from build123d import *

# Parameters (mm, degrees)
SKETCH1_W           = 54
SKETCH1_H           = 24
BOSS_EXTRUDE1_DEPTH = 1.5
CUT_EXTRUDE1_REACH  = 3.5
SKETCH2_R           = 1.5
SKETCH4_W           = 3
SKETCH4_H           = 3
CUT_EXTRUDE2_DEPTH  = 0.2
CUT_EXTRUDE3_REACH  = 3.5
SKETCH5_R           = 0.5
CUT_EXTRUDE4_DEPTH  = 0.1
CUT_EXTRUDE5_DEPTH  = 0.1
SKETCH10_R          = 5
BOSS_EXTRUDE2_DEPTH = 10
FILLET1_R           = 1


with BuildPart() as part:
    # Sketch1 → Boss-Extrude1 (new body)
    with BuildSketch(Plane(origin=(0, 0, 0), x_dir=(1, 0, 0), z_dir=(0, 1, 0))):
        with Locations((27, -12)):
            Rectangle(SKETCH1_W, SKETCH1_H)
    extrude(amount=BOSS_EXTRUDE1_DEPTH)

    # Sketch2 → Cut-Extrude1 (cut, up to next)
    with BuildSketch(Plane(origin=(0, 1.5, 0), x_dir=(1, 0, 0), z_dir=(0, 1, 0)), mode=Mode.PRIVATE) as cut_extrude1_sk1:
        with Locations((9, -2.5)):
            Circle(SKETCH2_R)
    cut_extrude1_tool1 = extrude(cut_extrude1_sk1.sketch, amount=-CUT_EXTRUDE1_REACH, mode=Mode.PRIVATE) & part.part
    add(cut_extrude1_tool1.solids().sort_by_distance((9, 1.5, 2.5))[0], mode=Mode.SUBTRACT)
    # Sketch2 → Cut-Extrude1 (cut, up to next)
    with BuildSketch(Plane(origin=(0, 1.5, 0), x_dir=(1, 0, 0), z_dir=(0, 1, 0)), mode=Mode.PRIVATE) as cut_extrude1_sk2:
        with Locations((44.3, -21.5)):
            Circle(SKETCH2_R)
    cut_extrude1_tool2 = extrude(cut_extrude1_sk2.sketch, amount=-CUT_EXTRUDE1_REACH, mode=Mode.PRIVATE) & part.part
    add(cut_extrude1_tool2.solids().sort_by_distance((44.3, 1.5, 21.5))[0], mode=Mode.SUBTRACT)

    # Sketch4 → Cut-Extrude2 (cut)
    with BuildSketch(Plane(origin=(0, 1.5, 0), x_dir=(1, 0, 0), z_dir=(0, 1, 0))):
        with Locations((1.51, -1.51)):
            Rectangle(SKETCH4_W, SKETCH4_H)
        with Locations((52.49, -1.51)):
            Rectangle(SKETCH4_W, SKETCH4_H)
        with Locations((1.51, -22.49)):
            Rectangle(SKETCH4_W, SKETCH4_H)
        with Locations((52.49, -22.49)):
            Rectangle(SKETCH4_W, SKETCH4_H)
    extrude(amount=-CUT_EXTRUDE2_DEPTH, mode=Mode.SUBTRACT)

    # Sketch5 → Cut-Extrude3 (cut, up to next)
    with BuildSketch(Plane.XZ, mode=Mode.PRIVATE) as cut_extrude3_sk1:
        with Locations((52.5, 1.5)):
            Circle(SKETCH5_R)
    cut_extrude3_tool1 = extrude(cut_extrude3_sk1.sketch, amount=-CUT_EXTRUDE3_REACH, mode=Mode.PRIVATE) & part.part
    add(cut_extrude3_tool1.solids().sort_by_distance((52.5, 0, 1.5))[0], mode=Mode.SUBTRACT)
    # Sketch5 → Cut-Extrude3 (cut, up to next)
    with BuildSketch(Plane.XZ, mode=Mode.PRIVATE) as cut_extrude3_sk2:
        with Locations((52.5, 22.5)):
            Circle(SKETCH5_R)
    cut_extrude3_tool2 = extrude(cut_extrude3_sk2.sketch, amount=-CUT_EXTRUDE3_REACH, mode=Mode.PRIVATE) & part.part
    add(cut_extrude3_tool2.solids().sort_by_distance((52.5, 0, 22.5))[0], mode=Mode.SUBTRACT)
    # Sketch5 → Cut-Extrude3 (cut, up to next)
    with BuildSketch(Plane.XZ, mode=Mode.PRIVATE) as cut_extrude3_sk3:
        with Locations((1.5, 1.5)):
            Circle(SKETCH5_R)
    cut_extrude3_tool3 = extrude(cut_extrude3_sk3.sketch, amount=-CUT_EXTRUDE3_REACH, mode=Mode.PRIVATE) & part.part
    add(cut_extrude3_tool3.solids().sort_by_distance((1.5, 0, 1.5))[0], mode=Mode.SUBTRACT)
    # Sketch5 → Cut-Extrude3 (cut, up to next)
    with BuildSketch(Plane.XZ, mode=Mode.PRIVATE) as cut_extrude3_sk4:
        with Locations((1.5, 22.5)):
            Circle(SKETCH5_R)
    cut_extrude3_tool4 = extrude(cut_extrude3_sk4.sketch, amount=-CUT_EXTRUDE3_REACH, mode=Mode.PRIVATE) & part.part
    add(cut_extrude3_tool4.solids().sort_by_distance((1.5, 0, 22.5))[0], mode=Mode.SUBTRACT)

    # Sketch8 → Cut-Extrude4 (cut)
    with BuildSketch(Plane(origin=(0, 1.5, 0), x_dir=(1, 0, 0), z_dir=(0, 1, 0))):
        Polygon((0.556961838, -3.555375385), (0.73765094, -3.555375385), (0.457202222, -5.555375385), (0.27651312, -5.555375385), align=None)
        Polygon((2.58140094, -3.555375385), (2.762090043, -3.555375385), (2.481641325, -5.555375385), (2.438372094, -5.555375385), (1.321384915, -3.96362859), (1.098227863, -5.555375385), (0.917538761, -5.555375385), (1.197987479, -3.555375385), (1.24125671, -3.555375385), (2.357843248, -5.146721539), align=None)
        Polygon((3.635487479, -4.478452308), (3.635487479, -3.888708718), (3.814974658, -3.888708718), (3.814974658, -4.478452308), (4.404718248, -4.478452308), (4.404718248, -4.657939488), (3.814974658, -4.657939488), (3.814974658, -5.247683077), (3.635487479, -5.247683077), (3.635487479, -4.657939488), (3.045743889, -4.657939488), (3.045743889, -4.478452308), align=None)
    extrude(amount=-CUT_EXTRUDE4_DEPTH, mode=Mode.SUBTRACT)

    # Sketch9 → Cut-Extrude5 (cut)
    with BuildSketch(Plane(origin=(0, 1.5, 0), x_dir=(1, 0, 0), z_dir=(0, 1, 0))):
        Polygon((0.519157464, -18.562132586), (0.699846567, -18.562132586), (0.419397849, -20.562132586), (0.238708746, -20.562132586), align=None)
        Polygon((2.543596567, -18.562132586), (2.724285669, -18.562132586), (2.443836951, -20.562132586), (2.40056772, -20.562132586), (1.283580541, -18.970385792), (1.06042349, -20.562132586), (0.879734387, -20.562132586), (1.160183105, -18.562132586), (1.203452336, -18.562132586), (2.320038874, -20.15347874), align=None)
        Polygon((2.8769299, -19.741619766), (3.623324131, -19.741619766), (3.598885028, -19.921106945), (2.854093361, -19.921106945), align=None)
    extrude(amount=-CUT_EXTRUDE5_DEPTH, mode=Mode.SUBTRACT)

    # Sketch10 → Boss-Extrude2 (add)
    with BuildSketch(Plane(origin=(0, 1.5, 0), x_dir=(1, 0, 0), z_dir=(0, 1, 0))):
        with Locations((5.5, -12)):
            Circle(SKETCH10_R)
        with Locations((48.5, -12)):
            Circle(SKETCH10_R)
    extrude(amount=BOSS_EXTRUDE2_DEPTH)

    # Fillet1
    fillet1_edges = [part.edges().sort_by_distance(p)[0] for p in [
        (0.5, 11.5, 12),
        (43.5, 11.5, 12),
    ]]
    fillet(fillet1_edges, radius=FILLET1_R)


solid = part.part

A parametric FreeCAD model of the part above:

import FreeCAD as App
import Part
import Sketcher

V = App.Vector
Q = App.Units.Quantity


def edges_at(feature, points):
    """Names of the edges that pass closest to the given points."""
    edges = feature.Shape.Edges
    near = lambda p: min(range(len(edges)), key=lambda i: edges[i].distToShape(Part.Vertex(*p))[0])
    return sorted({f"Edge{near(p) + 1}" for p in points})


def add_polygon(sketch, points):
    """Adds a closed chain of lines whose ends are joined by coincident constraints."""
    first, n = sketch.GeometryCount, len(points)
    for a, b in zip(points, points[1:] + points[:1]):
        sketch.addGeometry(Part.LineSegment(App.Vector(*a, 0), App.Vector(*b, 0)), False)
    for i in range(n):
        sketch.addConstraint(Sketcher.Constraint("Coincident", first + i, 2, first + (i + 1) % n, 1))

doc = App.newDocument("Part")
body = doc.addObject("PartDesign::Body", "Body")

sketch1 = doc.addObject("Sketcher::SketchObject", "Sketch")
body.addObject(sketch1)
sketch1.AttachmentSupport = (doc.XZ_Plane, [""])
sketch1.MapMode = "FlatFace"
add_polygon(sketch1, [(0, 0), (0, 24), (54, 24), (54, 0)])
sketch1.addConstraint([
    Sketcher.Constraint("Vertical", 0),
    Sketcher.Constraint("Horizontal", 1),
    Sketcher.Constraint("Vertical", 2),
    Sketcher.Constraint("Horizontal", 3),
    Sketcher.Constraint("Coincident", 3, 2, -1, 1),
    Sketcher.Constraint("DistanceX", 1, 1, 1, 2, Q("54 mm")),
    Sketcher.Constraint("DistanceY", 0, 1, 0, 2, Q("24 mm")),
])
pad1 = doc.addObject("PartDesign::Pad", "Pad")
body.addObject(pad1)
pad1.Profile = sketch1
pad1.Length = 1.5
pad1.Reversed = True

sketch2 = doc.addObject("Sketcher::SketchObject", "Sketch001")
body.addObject(sketch2)
sketch2.AttachmentSupport = (doc.XZ_Plane, [""])
sketch2.MapMode = "FlatFace"
sketch2.AttachmentOffset = App.Placement(V(0, 0, -1.5), App.Rotation())
sketch2.addGeometry(Part.Circle(V(9, 2.5, 0), V(0, 0, 1), 1.5), False)
sketch2.addConstraint([
    Sketcher.Constraint("Diameter", 0, Q("3 mm")),
    Sketcher.Constraint("DistanceX", -1, 1, 0, 3, Q("9 mm")),
    Sketcher.Constraint("DistanceY", -1, 1, 0, 3, Q("2.5 mm")),
])
pocket1 = doc.addObject("PartDesign::Pocket", "Pocket")
body.addObject(pocket1)
pocket1.Profile = sketch2
pocket1.Type = "UpToFirst"
pocket1.Reversed = True

sketch3 = doc.addObject("Sketcher::SketchObject", "Sketch002")
body.addObject(sketch3)
sketch3.AttachmentSupport = (doc.XZ_Plane, [""])
sketch3.MapMode = "FlatFace"
sketch3.AttachmentOffset = App.Placement(V(0, 0, -1.5), App.Rotation())
sketch3.addGeometry(Part.Circle(V(44.3, 21.5, 0), V(0, 0, 1), 1.5), False)
sketch3.addConstraint([
    Sketcher.Constraint("Diameter", 0, Q("3 mm")),
    Sketcher.Constraint("DistanceX", -1, 1, 0, 3, Q("44.3 mm")),
    Sketcher.Constraint("DistanceY", -1, 1, 0, 3, Q("21.5 mm")),
])
pocket2 = doc.addObject("PartDesign::Pocket", "Pocket001")
body.addObject(pocket2)
pocket2.Profile = sketch3
pocket2.Type = "UpToFirst"
pocket2.Reversed = True

sketch4 = doc.addObject("Sketcher::SketchObject", "Sketch003")
body.addObject(sketch4)
sketch4.AttachmentSupport = (doc.XZ_Plane, [""])
sketch4.MapMode = "FlatFace"
sketch4.AttachmentOffset = App.Placement(V(0, 0, -1.5), App.Rotation())
add_polygon(sketch4, [(0, 0), (0, 3), (3, 3), (3, 0)])
add_polygon(sketch4, [(51, 0), (51, 3), (54, 3), (54, 0)])
add_polygon(sketch4, [(0, 21), (0, 24), (3, 24), (3, 21)])
add_polygon(sketch4, [(51, 21), (51, 24), (54, 24), (54, 21)])
sketch4.addConstraint([
    Sketcher.Constraint("Vertical", 0),
    Sketcher.Constraint("Horizontal", 1),
    Sketcher.Constraint("Vertical", 2),
    Sketcher.Constraint("Horizontal", 3),
    Sketcher.Constraint("Vertical", 4),
    Sketcher.Constraint("Horizontal", 5),
    Sketcher.Constraint("Vertical", 6),
    Sketcher.Constraint("Horizontal", 7),
    Sketcher.Constraint("Vertical", 8),
    Sketcher.Constraint("Horizontal", 9),
    Sketcher.Constraint("Vertical", 10),
    Sketcher.Constraint("Horizontal", 11),
    Sketcher.Constraint("Vertical", 12),
    Sketcher.Constraint("Horizontal", 13),
    Sketcher.Constraint("Vertical", 14),
    Sketcher.Constraint("Horizontal", 15),
    Sketcher.Constraint("Horizontal", 1, 2, 4, 2),
    Sketcher.Constraint("Horizontal", 3, 2, 6, 2),
    Sketcher.Constraint("Horizontal", 9, 2, 12, 2),
    Sketcher.Constraint("Horizontal", 11, 2, 14, 2),
    Sketcher.Constraint("Vertical", 3, 2, 8, 2),
    Sketcher.Constraint("Vertical", 2, 2, 9, 2),
    Sketcher.Constraint("Vertical", 7, 2, 12, 2),
    Sketcher.Constraint("Vertical", 6, 2, 13, 2),
    Sketcher.Constraint("Equal", 3, 5),
    Sketcher.Constraint("Equal", 15, 0),
    Sketcher.Constraint("Equal", 6, 8),
    Sketcher.Constraint("DistanceX", 1, 1, 1, 2, Q("3 mm")),
    Sketcher.Constraint("DistanceX", -1, 1, 0, 2, Q("0.01 mm")),
    Sketcher.Constraint("DistanceY", -1, 1, 0, 2, Q("3.01 mm")),
    Sketcher.Constraint("DistanceX", -1, 1, 4, 2, Q("50.99 mm")),
    Sketcher.Constraint("DistanceY", -1, 1, 8, 2, Q("23.99 mm")),
])
pocket3 = doc.addObject("PartDesign::Pocket", "Pocket002")
body.addObject(pocket3)
pocket3.Profile = sketch4
pocket3.Length = 0.2
pocket3.Reversed = True

sketch5 = doc.addObject("Sketcher::SketchObject", "Sketch004")
body.addObject(sketch5)
sketch5.AttachmentSupport = (doc.XZ_Plane, [""])
sketch5.MapMode = "FlatFace"
sketch5.addGeometry(Part.Circle(V(52.5, 1.5, 0), V(0, 0, 1), 0.5), False)
sketch5.addConstraint([
    Sketcher.Constraint("Diameter", 0, Q("1 mm")),
    Sketcher.Constraint("DistanceX", -1, 1, 0, 3, Q("52.5 mm")),
    Sketcher.Constraint("DistanceY", -1, 1, 0, 3, Q("1.5 mm")),
])
pocket4 = doc.addObject("PartDesign::Pocket", "Pocket003")
body.addObject(pocket4)
pocket4.Profile = sketch5
pocket4.Type = "UpToFirst"

sketch6 = doc.addObject("Sketcher::SketchObject", "Sketch005")
body.addObject(sketch6)
sketch6.AttachmentSupport = (doc.XZ_Plane, [""])
sketch6.MapMode = "FlatFace"
sketch6.addGeometry(Part.Circle(V(52.5, 22.5, 0), V(0, 0, 1), 0.5), False)
sketch6.addConstraint([
    Sketcher.Constraint("Diameter", 0, Q("1 mm")),
    Sketcher.Constraint("DistanceX", -1, 1, 0, 3, Q("52.5 mm")),
    Sketcher.Constraint("DistanceY", -1, 1, 0, 3, Q("22.5 mm")),
])
pocket5 = doc.addObject("PartDesign::Pocket", "Pocket004")
body.addObject(pocket5)
pocket5.Profile = sketch6
pocket5.Type = "UpToFirst"

sketch7 = doc.addObject("Sketcher::SketchObject", "Sketch006")
body.addObject(sketch7)
sketch7.AttachmentSupport = (doc.XZ_Plane, [""])
sketch7.MapMode = "FlatFace"
sketch7.addGeometry(Part.Circle(V(1.5, 1.5, 0), V(0, 0, 1), 0.5), False)
sketch7.addConstraint([
    Sketcher.Constraint("Diameter", 0, Q("1 mm")),
    Sketcher.Constraint("DistanceX", -1, 1, 0, 3, Q("1.5 mm")),
    Sketcher.Constraint("DistanceY", -1, 1, 0, 3, Q("1.5 mm")),
])
pocket6 = doc.addObject("PartDesign::Pocket", "Pocket005")
body.addObject(pocket6)
pocket6.Profile = sketch7
pocket6.Type = "UpToFirst"

sketch8 = doc.addObject("Sketcher::SketchObject", "Sketch007")
body.addObject(sketch8)
sketch8.AttachmentSupport = (doc.XZ_Plane, [""])
sketch8.MapMode = "FlatFace"
sketch8.addGeometry(Part.Circle(V(1.5, 22.5, 0), V(0, 0, 1), 0.5), False)
sketch8.addConstraint([
    Sketcher.Constraint("Diameter", 0, Q("1 mm")),
    Sketcher.Constraint("DistanceX", -1, 1, 0, 3, Q("1.5 mm")),
    Sketcher.Constraint("DistanceY", -1, 1, 0, 3, Q("22.5 mm")),
])
pocket7 = doc.addObject("PartDesign::Pocket", "Pocket006")
body.addObject(pocket7)
pocket7.Profile = sketch8
pocket7.Type = "UpToFirst"

sketch9 = doc.addObject("Sketcher::SketchObject", "Sketch008")
body.addObject(sketch9)
sketch9.AttachmentSupport = (doc.XZ_Plane, [""])
sketch9.MapMode = "FlatFace"
sketch9.AttachmentOffset = App.Placement(V(0, 0, -1.5), App.Rotation())
add_polygon(sketch9, [(0.738, 3.555), (0.557, 3.555), (0.277, 5.555), (0.457, 5.555)])
add_polygon(sketch9, [(2.762, 3.555), (2.581, 3.555), (2.358, 5.147), (1.241, 3.555), (1.198, 3.555), (0.918, 5.555), (1.098, 5.555), (1.321, 3.964), (2.438, 5.555), (2.482, 5.555)])
add_polygon(sketch9, [(3.635, 3.889), (3.635, 4.478), (3.046, 4.478), (3.046, 4.658), (3.635, 4.658), (3.635, 5.248), (3.815, 5.248), (3.815, 4.658), (4.405, 4.658), (4.405, 4.478), (3.815, 4.478), (3.815, 3.889)])
sketch9.addConstraint([
    Sketcher.Constraint("Horizontal", 0),
    Sketcher.Constraint("Horizontal", 2),
    Sketcher.Constraint("Horizontal", 4),
    Sketcher.Constraint("Horizontal", 7),
    Sketcher.Constraint("Horizontal", 9),
    Sketcher.Constraint("Horizontal", 12),
    Sketcher.Constraint("Vertical", 14),
    Sketcher.Constraint("Horizontal", 15),
    Sketcher.Constraint("Vertical", 16),
    Sketcher.Constraint("Horizontal", 17),
    Sketcher.Constraint("Vertical", 18),
    Sketcher.Constraint("Horizontal", 19),
    Sketcher.Constraint("Vertical", 20),
    Sketcher.Constraint("Horizontal", 21),
    Sketcher.Constraint("Vertical", 22),
    Sketcher.Constraint("Horizontal", 23),
    Sketcher.Constraint("Vertical", 24),
    Sketcher.Constraint("Horizontal", 25),
    Sketcher.Constraint("Parallel", 1, 3),
    Sketcher.Constraint("Parallel", 3, 8),
    Sketcher.Constraint("Parallel", 8, 13),
    Sketcher.Constraint("Horizontal", 3, 2, 4, 2),
    Sketcher.Constraint("Horizontal", 4, 2, 6, 2),
    Sketcher.Constraint("Horizontal", 2, 2, 8, 2),
    Sketcher.Constraint("Horizontal", 9, 2, 11, 2),
    Sketcher.Constraint("Horizontal", 17, 2, 20, 2),
    Sketcher.Constraint("Horizontal", 15, 2, 22, 2),
    Sketcher.Constraint("Vertical", 14, 2, 17, 2),
    Sketcher.Constraint("Vertical", 20, 2, 23, 2),
    Sketcher.Constraint("Equal", 2, 4),
    Sketcher.Constraint("Equal", 4, 9),
    Sketcher.Constraint("Equal", 7, 12),
    Sketcher.Constraint("Equal", 17, 21),
    Sketcher.Constraint("Equal", 23, 14),
    Sketcher.Constraint("Equal", 25, 16),
    Sketcher.Constraint("Equal", 14, 18),
    Sketcher.Constraint("DistanceY", 0, 2, 1, 2, Q("2 mm")),
    Sketcher.Constraint("DistanceX", 0, 2, 0, 1, Q("0.180689 mm")),
    Sketcher.Constraint("DistanceX", 7, 2, 7, 1, Q("0.043269 mm")),
    Sketcher.Constraint("DistanceX", -1, 1, 4, 2, Q("2.581401 mm")),
    Sketcher.Constraint("DistanceX", 2, 2, 4, 2, Q("2.124199 mm")),
    Sketcher.Constraint("DistanceX", 5, 2, 12, 2, Q("0.123798 mm")),
    Sketcher.Constraint("DistanceX", 5, 2, 15, 2, Q("0.687901 mm")),
    Sketcher.Constraint("Distance", 11, Q("1.944561 mm")),
    Sketcher.Constraint("DistanceX", 15, 2, 15, 1, Q("0.589744 mm")),
    Sketcher.Constraint("DistanceX", 19, 1, 19, 2, Q("0.179487 mm")),
    Sketcher.Constraint("DistanceX", -1, 1, 0, 2, Q("0.556962 mm")),
    Sketcher.Constraint("DistanceY", -1, 1, 5, 2, Q("5.146722 mm")),
    Sketcher.Constraint("DistanceX", -1, 1, 8, 2, Q("0.917539 mm")),
    Sketcher.Constraint("DistanceY", -1, 1, 10, 2, Q("3.963629 mm")),
    Sketcher.Constraint("DistanceY", -1, 1, 16, 2, Q("4.657939 mm")),
    Sketcher.Constraint("DistanceX", 6, 2, 10, 2, Q("0.080128 mm")),
])
pocket8 = doc.addObject("PartDesign::Pocket", "Pocket007")
body.addObject(pocket8)
pocket8.Profile = sketch9
pocket8.Length = 0.1
pocket8.Reversed = True

sketch10 = doc.addObject("Sketcher::SketchObject", "Sketch009")
body.addObject(sketch10)
sketch10.AttachmentSupport = (doc.XZ_Plane, [""])
sketch10.MapMode = "FlatFace"
sketch10.AttachmentOffset = App.Placement(V(0, 0, -1.5), App.Rotation())
add_polygon(sketch10, [(0.7, 18.562), (0.519, 18.562), (0.239, 20.562), (0.419, 20.562)])
add_polygon(sketch10, [(2.724, 18.562), (2.544, 18.562), (2.32, 20.153), (1.203, 18.562), (1.16, 18.562), (0.88, 20.562), (1.06, 20.562), (1.284, 18.97), (2.401, 20.562), (2.444, 20.562)])
add_polygon(sketch10, [(3.623, 19.742), (2.877, 19.742), (2.854, 19.921), (3.599, 19.921)])
sketch10.addConstraint([
    Sketcher.Constraint("Horizontal", 0),
    Sketcher.Constraint("Horizontal", 2),
    Sketcher.Constraint("Horizontal", 4),
    Sketcher.Constraint("Horizontal", 7),
    Sketcher.Constraint("Horizontal", 9),
    Sketcher.Constraint("Horizontal", 12),
    Sketcher.Constraint("Horizontal", 14),
    Sketcher.Constraint("Horizontal", 16),
    Sketcher.Constraint("Parallel", 1, 3),
    Sketcher.Constraint("Parallel", 3, 8),
    Sketcher.Constraint("Parallel", 8, 13),
    Sketcher.Constraint("Horizontal", 3, 2, 4, 2),
    Sketcher.Constraint("Horizontal", 4, 2, 6, 2),
    Sketcher.Constraint("Horizontal", 2, 2, 8, 2),
    Sketcher.Constraint("Horizontal", 9, 2, 11, 2),
    Sketcher.Constraint("Equal", 2, 4),
    Sketcher.Constraint("Equal", 4, 9),
    Sketcher.Constraint("Equal", 7, 12),
    Sketcher.Constraint("DistanceY", 0, 2, 1, 2, Q("2 mm")),
    Sketcher.Constraint("DistanceX", 0, 2, 0, 1, Q("0.180689 mm")),
    Sketcher.Constraint("DistanceX", 7, 2, 7, 1, Q("0.043269 mm")),
    Sketcher.Constraint("DistanceX", 16, 1, 16, 2, Q("0.744792 mm")),
    Sketcher.Constraint("DistanceX", 2, 2, 4, 2, Q("2.124199 mm")),
    Sketcher.Constraint("DistanceX", 5, 2, 12, 2, Q("0.123798 mm")),
    Sketcher.Constraint("Distance", 11, Q("1.944561 mm")),
    Sketcher.Constraint("DistanceX", 14, 2, 14, 1, Q("0.746394 mm")),
    Sketcher.Constraint("DistanceX", -1, 1, 1, 2, Q("0.238709 mm")),
    Sketcher.Constraint("DistanceX", -1, 1, 5, 2, Q("2.320039 mm")),
    Sketcher.Constraint("DistanceY", -1, 1, 5, 2, Q("20.153479 mm")),
    Sketcher.Constraint("DistanceX", -1, 1, 10, 2, Q("1.283581 mm")),
    Sketcher.Constraint("DistanceX", -1, 1, 14, 2, Q("2.87693 mm")),
    Sketcher.Constraint("DistanceY", -1, 1, 14, 2, Q("19.74162 mm")),
    Sketcher.Constraint("DistanceX", 6, 2, 10, 2, Q("0.080128 mm")),
    Sketcher.Constraint("DistanceY", 15, 2, 5, 2, Q("0.232372 mm")),
    Sketcher.Constraint("DistanceX", 12, 2, 16, 2, Q("1.155048 mm")),
    Sketcher.Constraint("Distance", 5, Q("1.606973 mm")),
])
pocket9 = doc.addObject("PartDesign::Pocket", "Pocket008")
body.addObject(pocket9)
pocket9.Profile = sketch10
pocket9.Length = 0.1
pocket9.Reversed = True

sketch11 = doc.addObject("Sketcher::SketchObject", "Sketch010")
body.addObject(sketch11)
sketch11.AttachmentSupport = (doc.XZ_Plane, [""])
sketch11.MapMode = "FlatFace"
sketch11.AttachmentOffset = App.Placement(V(0, 0, -1.5), App.Rotation())
sketch11.addGeometry([
    Part.Circle(V(6, 12, 0), V(0, 0, 1), 5),
    Part.Circle(V(48, 12, 0), V(0, 0, 1), 5),
], False)
sketch11.addConstraint([
    Sketcher.Constraint("Equal", 0, 1),
    Sketcher.Constraint("Horizontal", 0, 3, 1, 3),
    Sketcher.Constraint("Diameter", 0, Q("10 mm")),
    Sketcher.Constraint("DistanceY", -1, 1, 0, 3, Q("12 mm")),
    Sketcher.Constraint("DistanceX", 0, 3, 1, 3, Q("43 mm")),
    Sketcher.Constraint("DistanceX", -1, 1, 0, 3, Q("5.5 mm")),
])
pad2 = doc.addObject("PartDesign::Pad", "Pad001")
body.addObject(pad2)
pad2.Profile = sketch11
pad2.Length = 10
pad2.Reversed = True
doc.recompute()

fillet = doc.addObject("PartDesign::Fillet", "Fillet")
body.addObject(fillet)
fillet.Base = (pad2, edges_at(pad2, [(0.5, 11.5, 12), (43.5, 11.5, 12)]))
fillet.Radius = 1

doc.recompute()
